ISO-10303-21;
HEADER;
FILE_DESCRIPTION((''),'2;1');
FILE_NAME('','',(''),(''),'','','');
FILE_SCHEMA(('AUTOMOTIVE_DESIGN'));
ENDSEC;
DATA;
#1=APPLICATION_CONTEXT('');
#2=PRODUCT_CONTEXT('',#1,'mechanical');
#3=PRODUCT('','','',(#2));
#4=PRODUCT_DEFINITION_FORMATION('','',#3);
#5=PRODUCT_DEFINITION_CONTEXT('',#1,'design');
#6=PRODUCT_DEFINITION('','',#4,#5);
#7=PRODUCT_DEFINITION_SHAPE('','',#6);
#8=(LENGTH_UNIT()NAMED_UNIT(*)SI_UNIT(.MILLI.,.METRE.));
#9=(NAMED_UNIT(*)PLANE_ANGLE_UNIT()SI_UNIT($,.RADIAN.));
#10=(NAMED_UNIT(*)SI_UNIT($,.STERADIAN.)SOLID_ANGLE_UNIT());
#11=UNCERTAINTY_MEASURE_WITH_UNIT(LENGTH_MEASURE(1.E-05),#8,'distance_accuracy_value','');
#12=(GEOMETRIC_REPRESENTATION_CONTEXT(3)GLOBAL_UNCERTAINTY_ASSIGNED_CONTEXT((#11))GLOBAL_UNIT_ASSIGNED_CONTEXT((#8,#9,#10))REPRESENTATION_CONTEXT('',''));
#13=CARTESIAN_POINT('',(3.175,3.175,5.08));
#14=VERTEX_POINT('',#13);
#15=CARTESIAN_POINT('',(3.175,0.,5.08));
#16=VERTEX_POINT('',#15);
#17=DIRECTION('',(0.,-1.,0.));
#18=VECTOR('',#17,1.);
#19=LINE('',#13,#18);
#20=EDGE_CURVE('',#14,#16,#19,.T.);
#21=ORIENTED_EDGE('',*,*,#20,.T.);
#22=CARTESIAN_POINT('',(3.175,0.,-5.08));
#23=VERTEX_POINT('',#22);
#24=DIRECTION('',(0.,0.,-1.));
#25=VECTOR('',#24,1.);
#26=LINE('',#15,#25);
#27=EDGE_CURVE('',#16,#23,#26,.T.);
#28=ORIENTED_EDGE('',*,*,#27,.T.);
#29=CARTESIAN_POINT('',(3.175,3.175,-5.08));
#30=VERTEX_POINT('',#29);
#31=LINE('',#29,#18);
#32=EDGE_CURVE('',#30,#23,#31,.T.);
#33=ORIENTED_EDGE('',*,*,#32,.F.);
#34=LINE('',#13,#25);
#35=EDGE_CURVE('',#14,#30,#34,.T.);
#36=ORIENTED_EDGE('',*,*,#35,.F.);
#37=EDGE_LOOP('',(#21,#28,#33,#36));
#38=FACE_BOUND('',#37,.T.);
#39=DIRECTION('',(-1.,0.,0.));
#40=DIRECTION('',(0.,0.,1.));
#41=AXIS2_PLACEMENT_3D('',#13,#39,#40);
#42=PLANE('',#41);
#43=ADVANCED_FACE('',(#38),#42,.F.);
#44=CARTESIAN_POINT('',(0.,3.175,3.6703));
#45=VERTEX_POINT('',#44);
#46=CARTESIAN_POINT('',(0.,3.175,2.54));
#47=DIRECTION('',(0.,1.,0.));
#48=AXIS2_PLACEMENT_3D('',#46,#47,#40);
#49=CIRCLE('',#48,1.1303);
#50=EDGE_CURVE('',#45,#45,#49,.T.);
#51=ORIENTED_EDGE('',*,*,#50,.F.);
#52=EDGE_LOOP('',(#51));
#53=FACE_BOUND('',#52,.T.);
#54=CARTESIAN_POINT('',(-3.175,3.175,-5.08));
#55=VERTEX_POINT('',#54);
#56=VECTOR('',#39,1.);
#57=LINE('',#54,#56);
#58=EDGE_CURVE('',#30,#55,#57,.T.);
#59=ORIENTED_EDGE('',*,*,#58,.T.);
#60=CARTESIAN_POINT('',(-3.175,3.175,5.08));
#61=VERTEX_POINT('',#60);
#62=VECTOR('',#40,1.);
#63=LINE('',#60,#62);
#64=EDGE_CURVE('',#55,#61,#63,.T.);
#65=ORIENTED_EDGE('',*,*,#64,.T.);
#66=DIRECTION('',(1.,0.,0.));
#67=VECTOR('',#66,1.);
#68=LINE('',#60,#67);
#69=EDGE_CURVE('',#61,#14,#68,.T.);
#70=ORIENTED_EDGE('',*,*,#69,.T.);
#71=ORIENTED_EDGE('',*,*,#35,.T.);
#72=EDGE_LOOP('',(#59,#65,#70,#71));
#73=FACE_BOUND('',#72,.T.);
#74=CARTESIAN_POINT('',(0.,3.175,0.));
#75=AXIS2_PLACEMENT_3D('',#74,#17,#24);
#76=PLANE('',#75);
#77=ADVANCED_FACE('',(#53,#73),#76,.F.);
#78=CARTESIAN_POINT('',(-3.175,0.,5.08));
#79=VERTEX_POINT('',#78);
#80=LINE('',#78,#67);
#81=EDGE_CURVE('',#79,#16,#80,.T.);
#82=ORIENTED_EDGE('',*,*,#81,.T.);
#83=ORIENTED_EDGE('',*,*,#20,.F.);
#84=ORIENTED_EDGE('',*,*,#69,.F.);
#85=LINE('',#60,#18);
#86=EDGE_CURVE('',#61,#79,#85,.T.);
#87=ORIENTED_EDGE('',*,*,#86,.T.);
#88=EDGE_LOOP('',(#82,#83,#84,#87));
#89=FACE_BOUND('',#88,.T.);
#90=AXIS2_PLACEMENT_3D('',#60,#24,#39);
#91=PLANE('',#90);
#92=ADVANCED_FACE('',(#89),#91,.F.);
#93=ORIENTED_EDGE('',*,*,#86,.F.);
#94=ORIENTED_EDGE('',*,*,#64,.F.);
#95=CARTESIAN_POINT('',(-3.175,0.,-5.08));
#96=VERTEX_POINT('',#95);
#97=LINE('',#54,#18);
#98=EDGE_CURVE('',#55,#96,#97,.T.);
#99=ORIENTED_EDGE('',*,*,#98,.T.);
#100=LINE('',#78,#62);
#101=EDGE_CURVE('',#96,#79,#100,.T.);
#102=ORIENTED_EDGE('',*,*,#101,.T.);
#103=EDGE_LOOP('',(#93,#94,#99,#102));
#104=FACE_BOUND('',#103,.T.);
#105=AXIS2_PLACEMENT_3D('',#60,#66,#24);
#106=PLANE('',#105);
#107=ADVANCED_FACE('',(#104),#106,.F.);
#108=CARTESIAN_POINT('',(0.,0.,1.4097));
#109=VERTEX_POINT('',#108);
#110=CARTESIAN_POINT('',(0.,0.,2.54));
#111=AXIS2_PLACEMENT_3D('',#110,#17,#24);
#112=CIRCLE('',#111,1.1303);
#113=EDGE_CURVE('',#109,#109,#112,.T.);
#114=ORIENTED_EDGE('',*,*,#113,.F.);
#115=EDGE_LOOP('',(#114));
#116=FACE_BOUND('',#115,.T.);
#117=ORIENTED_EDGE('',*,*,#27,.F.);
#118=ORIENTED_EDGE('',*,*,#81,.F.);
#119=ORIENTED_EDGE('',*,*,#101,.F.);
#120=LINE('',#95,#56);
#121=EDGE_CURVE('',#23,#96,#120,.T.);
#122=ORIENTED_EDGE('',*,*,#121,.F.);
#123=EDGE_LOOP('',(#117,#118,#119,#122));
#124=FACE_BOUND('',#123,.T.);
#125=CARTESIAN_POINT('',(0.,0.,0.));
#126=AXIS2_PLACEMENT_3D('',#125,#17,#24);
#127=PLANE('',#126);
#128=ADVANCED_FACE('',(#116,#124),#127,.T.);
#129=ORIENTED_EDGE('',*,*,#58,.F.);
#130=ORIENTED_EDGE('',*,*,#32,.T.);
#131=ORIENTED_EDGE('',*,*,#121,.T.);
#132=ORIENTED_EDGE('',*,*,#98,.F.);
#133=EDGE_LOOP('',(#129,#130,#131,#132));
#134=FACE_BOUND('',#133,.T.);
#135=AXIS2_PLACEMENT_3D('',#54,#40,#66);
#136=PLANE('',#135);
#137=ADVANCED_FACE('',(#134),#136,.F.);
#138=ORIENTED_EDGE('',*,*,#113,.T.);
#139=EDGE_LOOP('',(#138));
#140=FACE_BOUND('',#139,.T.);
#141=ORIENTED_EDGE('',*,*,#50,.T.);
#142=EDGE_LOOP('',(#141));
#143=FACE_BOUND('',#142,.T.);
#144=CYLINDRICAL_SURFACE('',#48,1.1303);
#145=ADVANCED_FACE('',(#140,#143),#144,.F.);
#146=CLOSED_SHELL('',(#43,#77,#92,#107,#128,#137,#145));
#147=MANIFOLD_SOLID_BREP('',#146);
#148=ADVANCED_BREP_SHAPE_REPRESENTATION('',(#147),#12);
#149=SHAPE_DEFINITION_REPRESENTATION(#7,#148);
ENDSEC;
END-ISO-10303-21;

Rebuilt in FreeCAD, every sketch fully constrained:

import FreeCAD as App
import Part
import Sketcher
Q = App.Units.Quantity

doc = App.newDocument("Part")
body = doc.addObject("PartDesign::Body", "Body")

# Sketch on XZ plane
sketch1 = doc.addObject("Sketcher::SketchObject", "Sketch")
body.addObject(sketch1)
sketch1.AttachmentSupport = (doc.XZ_Plane, [""])
sketch1.MapMode = "FlatFace"
sketch1.addGeometry([
    Part.LineSegment(App.Vector(-3.175, -5.08, 0), App.Vector(-3.175, 5.08, 0)),
    Part.LineSegment(App.Vector(-3.175, 5.08, 0), App.Vector(3.175, 5.08, 0)),
    Part.LineSegment(App.Vector(3.175, 5.08, 0), App.Vector(3.175, -5.08, 0)),
    Part.LineSegment(App.Vector(3.175, -5.08, 0), App.Vector(-3.175, -5.08, 0)),
], False)
sketch1.addConstraint([
    Sketcher.Constraint("Coincident", 0, 2, 1, 1),
    Sketcher.Constraint("Coincident", 1, 2, 2, 1),
    Sketcher.Constraint("Coincident", 2, 2, 3, 1),
    Sketcher.Constraint("Coincident", 3, 2, 0, 1),
    Sketcher.Constraint("Vertical", 0),
    Sketcher.Constraint("Horizontal", 1),
    Sketcher.Constraint("Vertical", 2),
    Sketcher.Constraint("Horizontal", 3),
    Sketcher.Constraint("Symmetric", 0, 2, 2, 2, -1, 1),
    Sketcher.Constraint("DistanceY", 0, 1, 0, 2, Q("0.4 in")),
    Sketcher.Constraint("DistanceX", 1, 1, 1, 2, Q("0.25 in")),
])
pad1 = doc.addObject("PartDesign::Pad", "Pad")
body.addObject(pad1)
pad1.Profile = sketch1
pad1.Length = Q("0.125 in")
pad1.Reversed = True

# Sketch on XZ plane
sketch2 = doc.addObject("Sketcher::SketchObject", "Sketch001")
body.addObject(sketch2)
sketch2.AttachmentSupport = (doc.XZ_Plane, [""])
sketch2.MapMode = "FlatFace"
sketch2.AttachmentOffset = App.Placement(App.Vector(0, 0, -0.125 * 25.4), App.Rotation())
sketch2.addGeometry(Part.Circle(App.Vector(0, 2.54, 0), App.Vector(0, 0, 1), 1.1303), False)
sketch2.addConstraint([
    Sketcher.Constraint("PointOnObject", 0, 3, -2),
    Sketcher.Constraint("Diameter", 0, Q("0.089 in")),
    Sketcher.Constraint("DistanceY", -1, 1, 0, 3, Q("0.1 in")),
])
doc.recompute()
hole = doc.addObject("PartDesign::Hole", "Hole")
body.addObject(hole)
hole.Profile = sketch2
hole.ThreadType = "None"
hole.Diameter = Q("0.089 in")
hole.DepthType = "Dimension"
hole.Depth = Q("0.299 in")
hole.DrillPoint = "Angled"
hole.DrillPointAngle = 118
hole.Reversed = True

doc.recompute()
